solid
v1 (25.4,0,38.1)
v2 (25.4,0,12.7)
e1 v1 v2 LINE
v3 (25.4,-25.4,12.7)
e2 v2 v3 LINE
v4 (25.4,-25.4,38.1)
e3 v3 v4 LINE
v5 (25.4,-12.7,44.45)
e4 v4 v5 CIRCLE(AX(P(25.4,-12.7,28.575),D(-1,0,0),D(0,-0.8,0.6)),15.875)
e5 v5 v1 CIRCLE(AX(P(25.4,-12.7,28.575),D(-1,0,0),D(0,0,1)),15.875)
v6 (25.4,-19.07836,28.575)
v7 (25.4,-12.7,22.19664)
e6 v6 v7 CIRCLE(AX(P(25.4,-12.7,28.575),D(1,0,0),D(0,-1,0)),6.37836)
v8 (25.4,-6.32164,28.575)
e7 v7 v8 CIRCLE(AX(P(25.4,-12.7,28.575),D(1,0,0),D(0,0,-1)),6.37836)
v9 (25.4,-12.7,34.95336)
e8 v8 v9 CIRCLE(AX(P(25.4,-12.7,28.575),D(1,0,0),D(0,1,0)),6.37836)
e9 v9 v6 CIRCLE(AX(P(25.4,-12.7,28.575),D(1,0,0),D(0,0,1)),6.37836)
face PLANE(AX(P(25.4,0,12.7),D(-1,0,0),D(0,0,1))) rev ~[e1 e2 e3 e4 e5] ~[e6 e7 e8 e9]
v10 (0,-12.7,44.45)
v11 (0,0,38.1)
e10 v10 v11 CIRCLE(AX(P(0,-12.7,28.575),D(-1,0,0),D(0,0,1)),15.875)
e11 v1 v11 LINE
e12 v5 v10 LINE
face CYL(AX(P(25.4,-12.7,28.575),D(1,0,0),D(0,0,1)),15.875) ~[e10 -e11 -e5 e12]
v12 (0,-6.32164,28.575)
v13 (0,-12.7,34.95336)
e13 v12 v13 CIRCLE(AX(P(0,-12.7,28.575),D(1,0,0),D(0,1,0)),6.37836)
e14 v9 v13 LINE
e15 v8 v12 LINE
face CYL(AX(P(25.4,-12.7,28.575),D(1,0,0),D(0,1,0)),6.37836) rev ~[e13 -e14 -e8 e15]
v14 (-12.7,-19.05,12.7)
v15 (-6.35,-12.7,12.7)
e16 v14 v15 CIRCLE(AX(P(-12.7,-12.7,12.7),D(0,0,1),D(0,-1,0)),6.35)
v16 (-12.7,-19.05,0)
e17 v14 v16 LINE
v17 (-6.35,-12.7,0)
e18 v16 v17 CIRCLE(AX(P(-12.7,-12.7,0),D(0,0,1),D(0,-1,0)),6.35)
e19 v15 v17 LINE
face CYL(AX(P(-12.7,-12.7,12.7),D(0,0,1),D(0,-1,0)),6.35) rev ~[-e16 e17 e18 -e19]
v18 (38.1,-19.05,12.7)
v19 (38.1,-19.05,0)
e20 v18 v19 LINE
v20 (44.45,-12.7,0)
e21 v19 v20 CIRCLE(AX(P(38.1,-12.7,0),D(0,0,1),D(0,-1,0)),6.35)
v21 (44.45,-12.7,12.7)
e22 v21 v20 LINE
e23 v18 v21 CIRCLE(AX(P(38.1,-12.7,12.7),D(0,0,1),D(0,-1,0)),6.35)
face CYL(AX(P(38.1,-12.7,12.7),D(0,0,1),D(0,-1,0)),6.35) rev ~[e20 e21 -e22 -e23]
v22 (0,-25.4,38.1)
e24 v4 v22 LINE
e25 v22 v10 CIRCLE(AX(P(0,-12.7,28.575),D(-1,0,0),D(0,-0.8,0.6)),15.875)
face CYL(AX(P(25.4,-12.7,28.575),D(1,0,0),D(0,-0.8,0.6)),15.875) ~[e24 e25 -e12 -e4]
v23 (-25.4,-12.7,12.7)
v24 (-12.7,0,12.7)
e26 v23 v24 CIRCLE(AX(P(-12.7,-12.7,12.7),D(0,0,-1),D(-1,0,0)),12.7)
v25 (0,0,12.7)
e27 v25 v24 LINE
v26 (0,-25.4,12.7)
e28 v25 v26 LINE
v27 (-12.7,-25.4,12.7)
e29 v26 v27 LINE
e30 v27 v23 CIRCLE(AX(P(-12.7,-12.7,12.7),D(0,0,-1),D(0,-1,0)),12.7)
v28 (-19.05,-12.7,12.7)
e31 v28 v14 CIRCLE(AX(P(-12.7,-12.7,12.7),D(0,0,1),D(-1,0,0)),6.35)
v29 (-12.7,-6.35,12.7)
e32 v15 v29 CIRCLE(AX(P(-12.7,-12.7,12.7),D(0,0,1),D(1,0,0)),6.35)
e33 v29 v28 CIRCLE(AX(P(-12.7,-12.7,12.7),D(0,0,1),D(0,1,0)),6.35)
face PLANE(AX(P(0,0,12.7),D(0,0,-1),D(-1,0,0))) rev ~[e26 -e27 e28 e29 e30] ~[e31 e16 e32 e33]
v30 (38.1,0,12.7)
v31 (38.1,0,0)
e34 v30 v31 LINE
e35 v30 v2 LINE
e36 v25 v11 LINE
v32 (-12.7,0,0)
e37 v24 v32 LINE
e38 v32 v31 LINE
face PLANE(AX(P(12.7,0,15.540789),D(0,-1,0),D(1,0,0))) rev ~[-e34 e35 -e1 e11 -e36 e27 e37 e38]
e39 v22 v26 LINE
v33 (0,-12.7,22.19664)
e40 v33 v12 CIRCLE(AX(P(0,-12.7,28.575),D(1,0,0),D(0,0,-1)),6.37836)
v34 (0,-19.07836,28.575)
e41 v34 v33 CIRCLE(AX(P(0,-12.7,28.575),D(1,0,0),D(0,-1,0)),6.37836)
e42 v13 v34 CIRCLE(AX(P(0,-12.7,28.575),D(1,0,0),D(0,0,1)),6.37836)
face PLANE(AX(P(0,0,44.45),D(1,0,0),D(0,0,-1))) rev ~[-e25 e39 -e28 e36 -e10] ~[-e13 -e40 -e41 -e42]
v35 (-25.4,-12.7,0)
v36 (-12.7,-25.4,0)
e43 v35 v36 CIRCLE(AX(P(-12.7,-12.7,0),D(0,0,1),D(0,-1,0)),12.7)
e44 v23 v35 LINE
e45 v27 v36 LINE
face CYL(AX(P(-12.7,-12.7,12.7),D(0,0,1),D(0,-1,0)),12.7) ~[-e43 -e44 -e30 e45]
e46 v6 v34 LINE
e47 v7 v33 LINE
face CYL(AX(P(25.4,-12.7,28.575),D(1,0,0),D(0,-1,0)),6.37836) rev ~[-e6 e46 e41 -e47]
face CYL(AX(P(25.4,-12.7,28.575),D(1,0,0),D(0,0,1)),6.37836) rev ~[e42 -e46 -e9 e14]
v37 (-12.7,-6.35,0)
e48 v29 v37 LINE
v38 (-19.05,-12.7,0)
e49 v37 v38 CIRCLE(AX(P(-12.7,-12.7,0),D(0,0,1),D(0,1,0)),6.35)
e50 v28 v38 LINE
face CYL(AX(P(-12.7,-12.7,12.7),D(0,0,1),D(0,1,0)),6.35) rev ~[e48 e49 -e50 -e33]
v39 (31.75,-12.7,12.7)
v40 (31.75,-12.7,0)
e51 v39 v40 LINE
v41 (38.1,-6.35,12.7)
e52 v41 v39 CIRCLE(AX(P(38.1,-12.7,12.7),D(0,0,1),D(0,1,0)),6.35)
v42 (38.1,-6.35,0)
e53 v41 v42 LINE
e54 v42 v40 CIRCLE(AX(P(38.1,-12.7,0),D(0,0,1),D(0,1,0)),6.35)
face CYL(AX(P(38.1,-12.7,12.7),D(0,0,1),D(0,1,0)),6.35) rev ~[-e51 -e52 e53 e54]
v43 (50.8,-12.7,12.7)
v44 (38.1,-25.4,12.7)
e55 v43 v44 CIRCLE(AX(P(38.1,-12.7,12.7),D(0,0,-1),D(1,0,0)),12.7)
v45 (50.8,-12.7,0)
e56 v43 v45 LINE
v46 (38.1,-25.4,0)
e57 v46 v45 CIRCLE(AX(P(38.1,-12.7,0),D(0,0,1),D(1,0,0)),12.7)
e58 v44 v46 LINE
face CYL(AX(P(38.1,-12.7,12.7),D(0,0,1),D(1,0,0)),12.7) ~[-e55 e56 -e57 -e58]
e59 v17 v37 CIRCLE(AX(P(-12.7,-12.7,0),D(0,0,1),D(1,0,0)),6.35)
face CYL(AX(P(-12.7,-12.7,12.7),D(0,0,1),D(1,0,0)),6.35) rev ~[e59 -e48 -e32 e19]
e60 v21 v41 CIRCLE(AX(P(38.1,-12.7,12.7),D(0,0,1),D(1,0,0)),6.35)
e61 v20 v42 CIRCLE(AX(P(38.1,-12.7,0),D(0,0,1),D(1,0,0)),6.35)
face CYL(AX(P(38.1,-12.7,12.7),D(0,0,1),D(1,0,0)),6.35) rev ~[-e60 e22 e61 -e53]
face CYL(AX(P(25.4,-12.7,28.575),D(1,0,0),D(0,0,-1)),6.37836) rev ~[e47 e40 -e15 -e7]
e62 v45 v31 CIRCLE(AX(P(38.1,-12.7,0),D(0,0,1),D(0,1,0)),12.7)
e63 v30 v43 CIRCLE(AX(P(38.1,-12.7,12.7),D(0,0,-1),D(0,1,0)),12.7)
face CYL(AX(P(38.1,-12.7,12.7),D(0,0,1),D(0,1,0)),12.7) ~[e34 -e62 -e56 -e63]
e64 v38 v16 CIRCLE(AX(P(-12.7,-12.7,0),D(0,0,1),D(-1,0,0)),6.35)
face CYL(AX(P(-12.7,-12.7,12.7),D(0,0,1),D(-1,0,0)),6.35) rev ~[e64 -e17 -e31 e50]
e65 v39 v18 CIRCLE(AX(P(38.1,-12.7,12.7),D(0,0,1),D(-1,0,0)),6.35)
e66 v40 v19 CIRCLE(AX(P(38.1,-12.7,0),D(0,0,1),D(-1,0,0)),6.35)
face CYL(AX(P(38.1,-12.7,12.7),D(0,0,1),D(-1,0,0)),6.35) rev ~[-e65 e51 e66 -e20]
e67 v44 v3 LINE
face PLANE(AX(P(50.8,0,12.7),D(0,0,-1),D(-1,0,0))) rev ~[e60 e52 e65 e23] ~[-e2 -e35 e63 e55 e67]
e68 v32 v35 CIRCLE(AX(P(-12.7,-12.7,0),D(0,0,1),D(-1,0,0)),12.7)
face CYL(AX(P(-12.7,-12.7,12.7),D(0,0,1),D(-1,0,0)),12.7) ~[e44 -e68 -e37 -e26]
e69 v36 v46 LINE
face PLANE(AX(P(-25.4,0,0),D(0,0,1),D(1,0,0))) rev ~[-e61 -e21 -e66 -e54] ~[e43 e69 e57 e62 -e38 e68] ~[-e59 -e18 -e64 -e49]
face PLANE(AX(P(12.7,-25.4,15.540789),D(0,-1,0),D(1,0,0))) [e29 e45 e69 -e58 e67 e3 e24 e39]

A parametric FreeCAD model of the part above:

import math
import FreeCAD as App
import Part
import Sketcher
from FreeCAD import Vector
Q = App.Units.Quantity

doc = App.newDocument("Part")
body = doc.addObject("PartDesign::Body", "Body")

# Sketch on XZ plane
sketch1 = doc.addObject("Sketcher::SketchObject", "Sketch")
body.addObject(sketch1)
sketch1.AttachmentSupport = (doc.XZ_Plane, [""])
sketch1.MapMode = "FlatFace"
sketch1.addGeometry([
    Part.LineSegment(Vector(-25.4, 12.7, 0), Vector(-25.4, 0, 0)),  # 0
    Part.LineSegment(Vector(-25.4, 0, 0), Vector(50.8, 0, 0)),  # 1
    Part.LineSegment(Vector(50.8, 0, 0), Vector(50.8, 12.7, 0)),  # 2
    Part.LineSegment(Vector(50.8, 12.7, 0), Vector(25.4, 12.7, 0)),  # 3
    Part.LineSegment(Vector(25.4, 12.7, 0), Vector(25.4, 44.45, 0)),  # 4
    Part.LineSegment(Vector(25.4, 44.45, 0), Vector(0, 44.45, 0)),  # 5
    Part.LineSegment(Vector(0, 44.45, 0), Vector(0, 12.7, 0)),  # 6
    Part.LineSegment(Vector(0, 12.7, 0), Vector(-25.4, 12.7, 0)),  # 7
], False)
sketch1.addConstraint([
    Sketcher.Constraint("Coincident", 0, 2, 1, 1),
    Sketcher.Constraint("Coincident", 1, 2, 2, 1),
    Sketcher.Constraint("Coincident", 2, 2, 3, 1),
    Sketcher.Constraint("Coincident", 3, 2, 4, 1),
    Sketcher.Constraint("Coincident", 4, 2, 5, 1),
    Sketcher.Constraint("Coincident", 5, 2, 6, 1),
    Sketcher.Constraint("Coincident", 6, 2, 7, 1),
    Sketcher.Constraint("Coincident", 7, 2, 0, 1),
    Sketcher.Constraint("Vertical", 0),
    Sketcher.Constraint("Horizontal", 1),
    Sketcher.Constraint("Vertical", 2),
    Sketcher.Constraint("Horizontal", 3),
    Sketcher.Constraint("Vertical", 4),
    Sketcher.Constraint("Horizontal", 5),
    Sketcher.Constraint("Vertical", 6),
    Sketcher.Constraint("Horizontal", 7),
    Sketcher.Constraint("Symmetric", 3, 2, 7, 2, -2),
    Sketcher.Constraint("PointOnObject", 0, 2, -1),
    Sketcher.Constraint("PointOnObject", 5, 2, -2),
    Sketcher.Constraint("Equal", 3, 5),
    Sketcher.Constraint("DistanceX", 1, 1, 1, 2, Q("3 in")),
    Sketcher.Constraint("DistanceY", 0, 2, 0, 1, Q("0.5 in")),
    Sketcher.Constraint("DistanceY", 4, 1, 4, 2, Q("1.25 in")),
])
pad1 = doc.addObject("PartDesign::Pad", "Pad")
body.addObject(pad1)
pad1.Profile = sketch1
pad1.Length = Q("1 in")

# Sketch on YZ plane
sketch2 = doc.addObject("Sketcher::SketchObject", "Sketch001")
body.addObject(sketch2)
sketch2.AttachmentSupport = (doc.YZ_Plane, [""])
sketch2.MapMode = "FlatFace"
sketch2.AttachmentOffset = App.Placement(Vector(0, 0, 1 * 25.4), App.Rotation())
sketch2.addGeometry([
    Part.ArcOfCircle(Part.Circle(Vector(-12.7, 28.575, 0), Vector(0, 0, 1), 15.875), math.radians(143.130102), math.radians(216.869898)),  # 0
    Part.LineSegment(Vector(-25.4, 19.05, 0), Vector(-25.4, 38.1, 0)),  # 1
    Part.ArcOfCircle(Part.Circle(Vector(-12.7, 28.575, 0), Vector(0, 0, 1), 15.875), math.radians(0), math.radians(36.869898)),  # 2
    Part.LineSegment(Vector(0, 38.1, 0), Vector(0, 19.05, 0)),  # 3
    Part.ArcOfCircle(Part.Circle(Vector(-12.7, 28.575, 0), Vector(0, 0, 1), 15.875), math.radians(-36.869898), math.radians(0)),  # 4
    Part.LineSegment(Vector(0, 44.45, 0), Vector(-12.7, 44.45, 0)),  # 5
    Part.ArcOfCircle(Part.Circle(Vector(-12.7, 28.575, 0), Vector(0, 0, 1), 15.875), math.radians(36.869898), math.radians(90)),  # 6
    Part.LineSegment(Vector(0, 38.1, 0), Vector(0, 44.45, 0)),  # 7
    Part.ArcOfCircle(Part.Circle(Vector(-12.7, 28.575, 0), Vector(0, 0, 1), 15.875), math.radians(90), math.radians(143.130102)),  # 8
    Part.LineSegment(Vector(-12.7, 44.45, 0), Vector(-25.4, 44.45, 0)),  # 9
    Part.LineSegment(Vector(-25.4, 44.45, 0), Vector(-25.4, 38.1, 0)),  # 10
    Part.ArcOfCircle(Part.Circle(Vector(-12.7, 28.575, 0), Vector(0, 0, 1), 6.37836), math.radians(0), math.radians(90)),  # 11
    Part.ArcOfCircle(Part.Circle(Vector(-12.7, 28.575, 0), Vector(0, 0, 1), 6.37836), math.radians(90), math.radians(180)),  # 12
    Part.ArcOfCircle(Part.Circle(Vector(-12.7, 28.575, 0), Vector(0, 0, 1), 6.37836), math.radians(180), math.radians(270)),  # 13
    Part.ArcOfCircle(Part.Circle(Vector(-12.7, 28.575, 0), Vector(0, 0, 1), 6.37836), math.radians(-90), math.radians(0)),  # 14
], False)
sketch2.addConstraint([
    Sketcher.Constraint("Coincident", 0, 1, 1, 2),
    Sketcher.Constraint("Coincident", 1, 1, 0, 2),
    Sketcher.Constraint("Coincident", 2, 2, 3, 1),
    Sketcher.Constraint("Coincident", 3, 2, 4, 1),
    Sketcher.Constraint("Tangent", 4, 2, 2, 1),
    Sketcher.Constraint("Tangent", 5, 2, 6, 2),
    Sketcher.Constraint("Coincident", 6, 1, 7, 1),
    Sketcher.Constraint("Coincident", 7, 2, 5, 1),
    Sketcher.Constraint("Tangent", 8, 1, 9, 1),
    Sketcher.Constraint("Coincident", 9, 2, 10, 1),
    Sketcher.Constraint("Coincident", 10, 2, 8, 2),
    Sketcher.Constraint("Tangent", 11, 2, 12, 1),
    Sketcher.Constraint("Tangent", 12, 2, 13, 1),
    Sketcher.Constraint("Tangent", 13, 2, 14, 1),
    Sketcher.Constraint("Tangent", 14, 2, 11, 1),
    Sketcher.Constraint("Vertical", 1),
    Sketcher.Constraint("Vertical", 3),
    Sketcher.Constraint("Horizontal", 5),
    Sketcher.Constraint("Vertical", 7),
    Sketcher.Constraint("Horizontal", 9),
    Sketcher.Constraint("Vertical", 10),
    Sketcher.Constraint("Coincident", 2, 3, 0, 3),
    Sketcher.Constraint("Coincident", 6, 3, 0, 3),
    Sketcher.Constraint("Coincident", 8, 3, 0, 3),
    Sketcher.Constraint("Coincident", 11, 3, 0, 3),
    Sketcher.Constraint("Coincident", 6, 1, 2, 2),
    Sketcher.Constraint("Coincident", 10, 2, 0, 1),
    Sketcher.Constraint("Equal", 0, 2),
    Sketcher.Constraint("Equal", 2, 4),
    Sketcher.Constraint("Equal", 11, 12),
    Sketcher.Constraint("PointOnObject", 2, 2, -2),
    Sketcher.Constraint("Horizontal", 0, 1, 2, 2),
    Sketcher.Constraint("Horizontal", 14, 3, 4, 2),
    Sketcher.Constraint("Horizontal", 4, 2, 12, 2),
    Sketcher.Constraint("Horizontal", 12, 2, 14, 2),
    Sketcher.Constraint("Vertical", 8, 1, 11, 2),
    Sketcher.Constraint("Vertical", 11, 2, 13, 2),
    Sketcher.Constraint("DistanceX", 5, 2, 5, 1, Q("0.5 in")),
    Sketcher.Constraint("Radius", 0, Q("0.625 in")),
    Sketcher.Constraint("DistanceY", -1, 1, 0, 1, Q("1.5 in")),
    Sketcher.Constraint("Radius", 11, Q("6.37836 mm")),
])
pocket1 = doc.addObject("PartDesign::Pocket", "Pocket")
body.addObject(pocket1)
pocket1.Profile = sketch2
pocket1.Length = Q("1 in")

# Sketch on XY plane
sketch3 = doc.addObject("Sketcher::SketchObject", "Sketch002")
body.addObject(sketch3)
sketch3.AttachmentSupport = (doc.XY_Plane, [""])
sketch3.MapMode = "FlatFace"
sketch3.AttachmentOffset = App.Placement(Vector(0, 0, 0.5 * 25.4), App.Rotation())
sketch3.addGeometry([
    Part.ArcOfCircle(Part.Circle(Vector(38.1, -12.7, 0), Vector(0, 0, 1), 6.35), math.radians(-90), math.radians(0)),  # 0
    Part.ArcOfCircle(Part.Circle(Vector(38.1, -12.7, 0), Vector(0, 0, 1), 6.35), math.radians(0), math.radians(90)),  # 1
    Part.ArcOfCircle(Part.Circle(Vector(38.1, -12.7, 0), Vector(0, 0, 1), 6.35), math.radians(90), math.radians(180)),  # 2
    Part.ArcOfCircle(Part.Circle(Vector(38.1, -12.7, 0), Vector(0, 0, 1), 6.35), math.radians(180), math.radians(270)),  # 3
    Part.LineSegment(Vector(50.8, 0, 0), Vector(38.1, 0, 0)),  # 4
    Part.ArcOfCircle(Part.Circle(Vector(38.1, -12.7, 0), Vector(0, 0, 1), 12.7), math.radians(0), math.radians(90)),  # 5
    Part.LineSegment(Vector(50.8, -12.7, 0), Vector(50.8, 0, 0)),  # 6
    Part.LineSegment(Vector(50.8, -25.4, 0), Vector(50.8, -12.7, 0)),  # 7
    Part.ArcOfCircle(Part.Circle(Vector(38.1, -12.7, 0), Vector(0, 0, 1), 12.7), math.radians(-90), math.radians(0)),  # 8
    Part.LineSegment(Vector(38.1, -25.4, 0), Vector(50.8, -25.4, 0)),  # 9
], False)
sketch3.addConstraint([
    Sketcher.Constraint("Tangent", 0, 2, 1, 1),
    Sketcher.Constraint("Tangent", 1, 2, 2, 1),
    Sketcher.Constraint("Tangent", 2, 2, 3, 1),
    Sketcher.Constraint("Tangent", 3, 2, 0, 1),
    Sketcher.Constraint("Tangent", 4, 2, 5, 2),
    Sketcher.Constraint("Tangent", 5, 1, 6, 1),
    Sketcher.Constraint("Coincident", 6, 2, 4, 1),
    Sketcher.Constraint("Tangent", 7, 2, 8, 2),
    Sketcher.Constraint("Tangent", 8, 1, 9, 1),
    Sketcher.Constraint("Coincident", 9, 2, 7, 1),
    Sketcher.Constraint("Horizontal", 4),
    Sketcher.Constraint("Vertical", 6),
    Sketcher.Constraint("Vertical", 7),
    Sketcher.Constraint("Horizontal", 9),
    Sketcher.Constraint("Coincident", 5, 3, 0, 3),
    Sketcher.Constraint("Coincident", 8, 3, 0, 3),
    Sketcher.Constraint("Equal", 0, 1),
    Sketcher.Constraint("Equal", 5, 8),
    Sketcher.Constraint("PointOnObject", 4, 2, -1),
    Sketcher.Constraint("Horizontal", 8, 3, 0, 2),
    Sketcher.Constraint("Horizontal", 0, 2, 2, 2),
    Sketcher.Constraint("Vertical", 8, 3, 1, 2),
    Sketcher.Constraint("Vertical", 1, 2, 3, 2),
    Sketcher.Constraint("Radius", 5, Q("0.5 in")),
    Sketcher.Constraint("Radius", 0, Q("0.25 in")),
    Sketcher.Constraint("DistanceX", -1, 1, 5, 1, Q("2 in")),
])
pocket2 = doc.addObject("PartDesign::Pocket", "Pocket001")
body.addObject(pocket2)
pocket2.Profile = sketch3
pocket2.Length = Q("1 in")

# Sketch on XY plane
sketch4 = doc.addObject("Sketcher::SketchObject", "Sketch003")
body.addObject(sketch4)
sketch4.AttachmentSupport = (doc.XY_Plane, [""])
sketch4.MapMode = "FlatFace"
sketch4.AttachmentOffset = App.Placement(Vector(0, 0, 0.5 * 25.4), App.Rotation())
sketch4.addGeometry([
    Part.ArcOfCircle(Part.Circle(Vector(-12.7, -12.7, 0), Vector(0, 0, 1), 6.35), math.radians(90), math.radians(180)),  # 0
    Part.ArcOfCircle(Part.Circle(Vector(-12.7, -12.7, 0), Vector(0, 0, 1), 6.35), math.radians(180), math.radians(270)),  # 1
    Part.ArcOfCircle(Part.Circle(Vector(-12.7, -12.7, 0), Vector(0, 0, 1), 6.35), math.radians(-90), math.radians(0)),  # 2
    Part.ArcOfCircle(Part.Circle(Vector(-12.7, -12.7, 0), Vector(0, 0, 1), 6.35), math.radians(0), math.radians(90)),  # 3
    Part.ArcOfCircle(Part.Circle(Vector(-12.7, -12.7, 0), Vector(0, 0, 1), 12.7), math.radians(180), math.radians(270)),  # 4
    Part.LineSegment(Vector(-25.4, -12.7, 0), Vector(-25.4, -25.4, 0)),  # 5
    Part.LineSegment(Vector(-25.4, -25.4, 0), Vector(-12.7, -25.4, 0)),  # 6
    Part.ArcOfCircle(Part.Circle(Vector(-12.7, -12.7, 0), Vector(0, 0, 1), 12.7), math.radians(90), math.radians(180)),  # 7
    Part.LineSegment(Vector(-12.7, 0, 0), Vector(-25.4, 0, 0)),  # 8
    Part.LineSegment(Vector(-25.4, 0, 0), Vector(-25.4, -12.7, 0)),  # 9
], False)
sketch4.addConstraint([
    Sketcher.Constraint("Tangent", 0, 2, 1, 1),
    Sketcher.Constraint("Tangent", 1, 2, 2, 1),
    Sketcher.Constraint("Tangent", 2, 2, 3, 1),
    Sketcher.Constraint("Tangent", 3, 2, 0, 1),
    Sketcher.Constraint("Tangent", 4, 1, 5, 1),
    Sketcher.Constraint("Coincident", 5, 2, 6, 1),
    Sketcher.Constraint("Tangent", 6, 2, 4, 2),
    Sketcher.Constraint("Tangent", 7, 1, 8, 1),
    Sketcher.Constraint("Coincident", 8, 2, 9, 1),
    Sketcher.Constraint("Tangent", 9, 2, 7, 2),
    Sketcher.Constraint("Vertical", 5),
    Sketcher.Constraint("Horizontal", 6),
    Sketcher.Constraint("Horizontal", 8),
    Sketcher.Constraint("Vertical", 9),
    Sketcher.Constraint("Coincident", 4, 3, 0, 3),
    Sketcher.Constraint("Coincident", 7, 3, 0, 3),
    Sketcher.Constraint("Equal", 0, 1),
    Sketcher.Constraint("Equal", 4, 7),
    Sketcher.Constraint("PointOnObject", 7, 1, -1),
    Sketcher.Constraint("Horizontal", 7, 3, 0, 2),
    Sketcher.Constraint("Horizontal", 0, 2, 2, 2),
    Sketcher.Constraint("Vertical", 7, 3, 1, 2),
    Sketcher.Constraint("Vertical", 1, 2, 3, 2),
    Sketcher.Constraint("Radius", 4, Q("0.5 in")),
    Sketcher.Constraint("Radius", 0, Q("0.25 in")),
    Sketcher.Constraint("DistanceX", 4, 1, -1, 1, Q("1 in")),
])
pocket3 = doc.addObject("PartDesign::Pocket", "Pocket002")
body.addObject(pocket3)
pocket3.Profile = sketch4
pocket3.Length = Q("1 in")

doc.recompute()
